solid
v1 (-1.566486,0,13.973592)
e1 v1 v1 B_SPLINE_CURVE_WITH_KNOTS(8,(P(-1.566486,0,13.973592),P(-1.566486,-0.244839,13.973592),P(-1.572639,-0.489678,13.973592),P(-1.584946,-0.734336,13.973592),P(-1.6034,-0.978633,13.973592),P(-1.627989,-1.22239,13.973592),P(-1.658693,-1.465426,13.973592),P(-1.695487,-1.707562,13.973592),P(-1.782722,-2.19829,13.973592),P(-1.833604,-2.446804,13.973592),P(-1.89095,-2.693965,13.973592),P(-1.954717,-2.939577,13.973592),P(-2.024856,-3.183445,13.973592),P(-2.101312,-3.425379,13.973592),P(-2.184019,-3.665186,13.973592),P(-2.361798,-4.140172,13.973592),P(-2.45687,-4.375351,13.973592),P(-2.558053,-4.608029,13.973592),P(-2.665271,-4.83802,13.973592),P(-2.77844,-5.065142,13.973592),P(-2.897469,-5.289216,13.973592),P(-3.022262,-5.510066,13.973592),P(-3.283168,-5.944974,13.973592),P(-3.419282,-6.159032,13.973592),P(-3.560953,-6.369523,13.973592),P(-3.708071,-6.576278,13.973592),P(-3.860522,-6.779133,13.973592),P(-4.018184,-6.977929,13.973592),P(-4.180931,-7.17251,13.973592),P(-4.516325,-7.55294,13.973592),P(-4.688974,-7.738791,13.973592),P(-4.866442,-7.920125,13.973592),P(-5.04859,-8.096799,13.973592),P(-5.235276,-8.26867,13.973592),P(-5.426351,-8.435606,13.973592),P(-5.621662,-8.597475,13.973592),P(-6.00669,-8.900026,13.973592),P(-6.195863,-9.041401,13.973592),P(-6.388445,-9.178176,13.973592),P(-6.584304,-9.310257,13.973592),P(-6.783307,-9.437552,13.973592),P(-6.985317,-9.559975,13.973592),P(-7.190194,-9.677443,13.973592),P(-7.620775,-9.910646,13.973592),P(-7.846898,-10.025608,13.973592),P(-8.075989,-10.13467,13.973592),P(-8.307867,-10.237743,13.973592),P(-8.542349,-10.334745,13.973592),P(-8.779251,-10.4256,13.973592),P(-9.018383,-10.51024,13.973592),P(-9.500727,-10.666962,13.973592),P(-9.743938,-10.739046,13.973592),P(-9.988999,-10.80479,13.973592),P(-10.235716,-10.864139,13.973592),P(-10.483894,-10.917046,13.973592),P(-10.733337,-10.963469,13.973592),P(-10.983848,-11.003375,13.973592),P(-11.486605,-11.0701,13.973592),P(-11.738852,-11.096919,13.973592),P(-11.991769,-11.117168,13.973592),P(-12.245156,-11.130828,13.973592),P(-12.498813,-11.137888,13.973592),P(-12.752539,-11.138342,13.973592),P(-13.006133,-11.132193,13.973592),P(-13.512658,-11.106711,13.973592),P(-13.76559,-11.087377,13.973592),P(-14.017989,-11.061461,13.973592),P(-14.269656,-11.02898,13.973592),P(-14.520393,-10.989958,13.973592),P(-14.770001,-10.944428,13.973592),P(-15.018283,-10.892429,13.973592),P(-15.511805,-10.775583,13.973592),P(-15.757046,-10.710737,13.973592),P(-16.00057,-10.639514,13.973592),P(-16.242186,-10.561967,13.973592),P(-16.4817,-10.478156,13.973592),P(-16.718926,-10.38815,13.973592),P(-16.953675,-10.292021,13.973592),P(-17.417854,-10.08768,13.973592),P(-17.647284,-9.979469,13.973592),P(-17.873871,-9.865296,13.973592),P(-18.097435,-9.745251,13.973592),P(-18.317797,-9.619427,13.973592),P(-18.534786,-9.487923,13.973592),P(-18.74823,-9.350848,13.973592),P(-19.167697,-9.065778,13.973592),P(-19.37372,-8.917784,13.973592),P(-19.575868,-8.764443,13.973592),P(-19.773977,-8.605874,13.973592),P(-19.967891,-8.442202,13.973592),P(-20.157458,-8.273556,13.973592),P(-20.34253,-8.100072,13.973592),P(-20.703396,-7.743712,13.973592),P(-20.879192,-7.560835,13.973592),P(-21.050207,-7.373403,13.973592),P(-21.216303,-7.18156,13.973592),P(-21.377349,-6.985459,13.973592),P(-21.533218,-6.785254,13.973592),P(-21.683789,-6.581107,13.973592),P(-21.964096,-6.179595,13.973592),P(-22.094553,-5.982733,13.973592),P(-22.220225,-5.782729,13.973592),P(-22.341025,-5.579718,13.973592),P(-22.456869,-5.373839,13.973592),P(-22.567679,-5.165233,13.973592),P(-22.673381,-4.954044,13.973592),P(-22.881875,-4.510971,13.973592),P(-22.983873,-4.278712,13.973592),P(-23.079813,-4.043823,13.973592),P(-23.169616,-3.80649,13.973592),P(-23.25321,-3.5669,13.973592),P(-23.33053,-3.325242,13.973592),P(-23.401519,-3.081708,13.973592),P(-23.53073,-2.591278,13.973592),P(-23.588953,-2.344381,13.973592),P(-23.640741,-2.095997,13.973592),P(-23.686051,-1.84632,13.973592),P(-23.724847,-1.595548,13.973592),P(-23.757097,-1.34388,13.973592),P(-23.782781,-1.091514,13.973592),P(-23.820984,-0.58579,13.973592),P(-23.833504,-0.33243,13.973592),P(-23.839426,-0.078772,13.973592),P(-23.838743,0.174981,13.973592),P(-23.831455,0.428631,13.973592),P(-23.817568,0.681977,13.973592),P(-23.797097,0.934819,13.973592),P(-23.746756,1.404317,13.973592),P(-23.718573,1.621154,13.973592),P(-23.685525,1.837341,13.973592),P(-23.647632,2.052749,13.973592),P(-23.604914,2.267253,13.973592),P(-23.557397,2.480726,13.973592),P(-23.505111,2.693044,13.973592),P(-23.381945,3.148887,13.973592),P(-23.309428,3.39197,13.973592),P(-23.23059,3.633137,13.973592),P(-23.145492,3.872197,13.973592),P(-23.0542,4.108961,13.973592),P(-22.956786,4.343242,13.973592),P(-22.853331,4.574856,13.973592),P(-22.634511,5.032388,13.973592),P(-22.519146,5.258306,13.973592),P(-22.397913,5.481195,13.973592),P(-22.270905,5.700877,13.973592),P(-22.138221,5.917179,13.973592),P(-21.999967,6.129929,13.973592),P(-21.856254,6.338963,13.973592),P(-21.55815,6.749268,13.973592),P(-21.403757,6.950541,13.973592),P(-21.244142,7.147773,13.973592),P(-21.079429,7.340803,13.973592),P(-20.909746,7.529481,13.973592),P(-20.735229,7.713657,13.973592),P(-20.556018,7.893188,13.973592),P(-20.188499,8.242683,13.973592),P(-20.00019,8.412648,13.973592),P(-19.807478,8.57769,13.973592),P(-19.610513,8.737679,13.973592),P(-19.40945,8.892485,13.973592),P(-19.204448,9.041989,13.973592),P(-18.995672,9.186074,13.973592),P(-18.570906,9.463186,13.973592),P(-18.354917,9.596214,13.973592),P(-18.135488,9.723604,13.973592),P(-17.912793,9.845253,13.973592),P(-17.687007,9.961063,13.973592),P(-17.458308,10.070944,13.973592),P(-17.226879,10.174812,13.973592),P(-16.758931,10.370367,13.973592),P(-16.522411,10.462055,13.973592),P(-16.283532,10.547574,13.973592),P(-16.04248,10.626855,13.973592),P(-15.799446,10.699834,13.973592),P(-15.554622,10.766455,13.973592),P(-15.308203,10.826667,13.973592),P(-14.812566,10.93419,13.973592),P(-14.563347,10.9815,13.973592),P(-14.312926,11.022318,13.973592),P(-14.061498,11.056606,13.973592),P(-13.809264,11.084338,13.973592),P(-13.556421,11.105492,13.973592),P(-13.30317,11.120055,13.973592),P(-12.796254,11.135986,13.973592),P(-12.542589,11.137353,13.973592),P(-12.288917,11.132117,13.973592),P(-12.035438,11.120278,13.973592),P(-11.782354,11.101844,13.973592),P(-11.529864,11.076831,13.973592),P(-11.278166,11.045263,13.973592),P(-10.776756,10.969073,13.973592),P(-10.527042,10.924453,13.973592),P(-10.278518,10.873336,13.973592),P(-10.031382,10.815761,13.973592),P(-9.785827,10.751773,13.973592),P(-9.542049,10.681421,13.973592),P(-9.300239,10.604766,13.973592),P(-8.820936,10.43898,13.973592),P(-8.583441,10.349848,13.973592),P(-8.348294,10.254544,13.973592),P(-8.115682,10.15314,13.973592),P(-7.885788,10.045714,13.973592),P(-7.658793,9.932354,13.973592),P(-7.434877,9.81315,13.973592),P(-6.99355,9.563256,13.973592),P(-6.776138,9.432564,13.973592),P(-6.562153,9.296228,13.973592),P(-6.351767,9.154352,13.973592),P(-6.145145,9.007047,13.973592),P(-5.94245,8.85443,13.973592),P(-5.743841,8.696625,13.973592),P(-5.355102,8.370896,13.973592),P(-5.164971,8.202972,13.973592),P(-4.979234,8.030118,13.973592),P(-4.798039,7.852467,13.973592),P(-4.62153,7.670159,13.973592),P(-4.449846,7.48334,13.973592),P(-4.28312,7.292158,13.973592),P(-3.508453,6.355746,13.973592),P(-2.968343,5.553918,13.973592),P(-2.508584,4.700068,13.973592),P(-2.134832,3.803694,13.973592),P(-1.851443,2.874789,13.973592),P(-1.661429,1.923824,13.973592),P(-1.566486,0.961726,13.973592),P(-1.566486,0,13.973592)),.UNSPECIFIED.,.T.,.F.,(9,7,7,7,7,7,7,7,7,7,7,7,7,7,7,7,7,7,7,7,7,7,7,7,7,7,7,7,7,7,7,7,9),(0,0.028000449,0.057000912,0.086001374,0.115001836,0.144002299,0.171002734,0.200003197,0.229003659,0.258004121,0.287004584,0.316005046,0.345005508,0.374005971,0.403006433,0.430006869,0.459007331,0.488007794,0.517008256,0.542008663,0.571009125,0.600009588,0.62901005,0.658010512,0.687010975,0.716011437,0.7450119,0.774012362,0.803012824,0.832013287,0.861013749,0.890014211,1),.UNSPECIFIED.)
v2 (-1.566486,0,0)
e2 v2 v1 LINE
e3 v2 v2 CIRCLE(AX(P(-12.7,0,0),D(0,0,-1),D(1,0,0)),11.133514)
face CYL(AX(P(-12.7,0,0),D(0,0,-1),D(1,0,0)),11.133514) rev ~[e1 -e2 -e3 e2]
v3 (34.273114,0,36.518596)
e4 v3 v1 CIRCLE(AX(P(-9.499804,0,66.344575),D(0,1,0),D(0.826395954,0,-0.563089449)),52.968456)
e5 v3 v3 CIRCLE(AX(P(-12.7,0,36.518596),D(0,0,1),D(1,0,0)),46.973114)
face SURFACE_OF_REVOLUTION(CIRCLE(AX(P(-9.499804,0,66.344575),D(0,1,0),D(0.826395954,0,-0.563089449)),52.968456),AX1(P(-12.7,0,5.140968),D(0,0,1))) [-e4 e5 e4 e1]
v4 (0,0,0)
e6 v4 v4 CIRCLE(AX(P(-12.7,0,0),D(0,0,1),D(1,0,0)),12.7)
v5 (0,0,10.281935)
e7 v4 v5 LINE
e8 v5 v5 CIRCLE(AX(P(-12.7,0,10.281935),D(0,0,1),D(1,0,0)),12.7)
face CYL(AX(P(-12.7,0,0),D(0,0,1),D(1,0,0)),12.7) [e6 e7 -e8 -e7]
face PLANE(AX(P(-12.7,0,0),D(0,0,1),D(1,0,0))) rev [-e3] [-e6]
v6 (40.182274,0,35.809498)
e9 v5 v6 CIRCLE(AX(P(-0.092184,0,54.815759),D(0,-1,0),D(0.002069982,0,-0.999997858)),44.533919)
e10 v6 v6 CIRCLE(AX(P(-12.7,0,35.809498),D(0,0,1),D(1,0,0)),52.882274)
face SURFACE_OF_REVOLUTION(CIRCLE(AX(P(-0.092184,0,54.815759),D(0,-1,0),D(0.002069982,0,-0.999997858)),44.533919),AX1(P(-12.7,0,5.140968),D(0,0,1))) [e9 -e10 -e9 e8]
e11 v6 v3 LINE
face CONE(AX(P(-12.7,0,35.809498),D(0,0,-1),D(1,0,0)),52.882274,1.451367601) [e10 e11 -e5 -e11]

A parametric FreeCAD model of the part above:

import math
import FreeCAD as App
import Part
import Sketcher

V = App.Vector
Q = App.Units.Quantity

doc = App.newDocument("Part")
body = doc.addObject("PartDesign::Body", "Body")

# Sketch on XZ plane
sketch1 = body.newObject("Sketcher::SketchObject", "Sketch")
sketch1.AttachmentSupport = (doc.getObject("XZ_Plane"), [""])
sketch1.MapMode = "FlatFace"
sketch1.addGeometry([
    Part.LineSegment(V(-13, 0, 0), V(0, 0, 0)),  # 0
    Part.LineSegment(V(0, 0, 0), V(0, 10, 0)),  # 1
    Part.ArcOfCircle(Part.Circle(V(0, 55, 0), V(0, 0, 1), 45), math.radians(-90), math.radians(-25)),  # 2
    Part.LineSegment(V(40, 36, 0), V(34, 37, 0)),  # 3
    Part.ArcOfCircle(Part.Circle(V(-9, 66, 0), V(0, 0, 1), 53), math.radians(-93), math.radians(-34)),  # 4
    Part.LineSegment(V(-13, 13, 0), V(-13, 0, 0)),  # 5
], False)
sketch1.addGeometry(Part.LineSegment(V(-13, 0, 0), V(-13, 66, 0)), True)  # axis
sketch1.addConstraint([
    Sketcher.Constraint("Coincident", 0, 2, 1, 1),
    Sketcher.Constraint("Coincident", 1, 2, 2, 1),
    Sketcher.Constraint("Coincident", 2, 2, 3, 1),
    Sketcher.Constraint("Coincident", 3, 2, 4, 2),
    Sketcher.Constraint("Coincident", 4, 1, 5, 1),
    Sketcher.Constraint("Coincident", 5, 2, 0, 1),
    Sketcher.Constraint("Horizontal", 0),
    Sketcher.Constraint("Vertical", 1),
    Sketcher.Constraint("Vertical", 5),
    Sketcher.Constraint("Vertical", 6),
    Sketcher.Constraint("Coincident", 0, 2, -1, 1),
    Sketcher.Constraint("Coincident", 6, 1, 5, 2),
    Sketcher.Constraint("Horizontal", 4, 3, 6, 2),
    Sketcher.Constraint("DistanceX", 0, 1, 0, 2, Q("0.5 in")),
    Sketcher.Constraint("Radius", 2, 44.533919),
    Sketcher.Constraint("Radius", 4, 52.968456),
    Sketcher.Constraint("DistanceY", 5, 2, 5, 1, 13.47288),
    Sketcher.Constraint("DistanceY", -1, 1, 2, 2, 35.809498),
    Sketcher.Constraint("DistanceX", 2, 3, 3, 2, 34.365298),
    Sketcher.Constraint("DistanceY", 1, 1, 1, 2, 10.281935),
    Sketcher.Constraint("DistanceY", 6, 1, 6, 2, 66.344575),
    Sketcher.Constraint("DistanceX", 4, 3, 2, 3, 9.40762),
])
revolution = body.newObject("PartDesign::Revolution", "Revolution")
revolution.Profile = sketch1
revolution.ReferenceAxis = (sketch1, ["Axis0"])
revolution.Angle = 360

# Sketch on XY plane
sketch2 = body.newObject("Sketcher::SketchObject", "Sketch001")
sketch2.AttachmentSupport = (doc.getObject("XY_Plane"), [""])
sketch2.MapMode = "FlatFace"
sketch2.addGeometry(Part.Circle(V(-13, 0, 0), V(0, 0, 1), 11), False)
sketch2.addConstraint([
    Sketcher.Constraint("PointOnObject", 0, 3, -1),
    Sketcher.Constraint("DistanceX", 0, 3, -1, 1, Q("0.5 in")),
    Sketcher.Constraint("Diameter", 0, 22.267028),
])
pocket1 = body.newObject("PartDesign::Pocket", "Pocket")
pocket1.Profile = sketch2
pocket1.Length = Q("1 in")
pocket1.Reversed = True

doc.recompute()
